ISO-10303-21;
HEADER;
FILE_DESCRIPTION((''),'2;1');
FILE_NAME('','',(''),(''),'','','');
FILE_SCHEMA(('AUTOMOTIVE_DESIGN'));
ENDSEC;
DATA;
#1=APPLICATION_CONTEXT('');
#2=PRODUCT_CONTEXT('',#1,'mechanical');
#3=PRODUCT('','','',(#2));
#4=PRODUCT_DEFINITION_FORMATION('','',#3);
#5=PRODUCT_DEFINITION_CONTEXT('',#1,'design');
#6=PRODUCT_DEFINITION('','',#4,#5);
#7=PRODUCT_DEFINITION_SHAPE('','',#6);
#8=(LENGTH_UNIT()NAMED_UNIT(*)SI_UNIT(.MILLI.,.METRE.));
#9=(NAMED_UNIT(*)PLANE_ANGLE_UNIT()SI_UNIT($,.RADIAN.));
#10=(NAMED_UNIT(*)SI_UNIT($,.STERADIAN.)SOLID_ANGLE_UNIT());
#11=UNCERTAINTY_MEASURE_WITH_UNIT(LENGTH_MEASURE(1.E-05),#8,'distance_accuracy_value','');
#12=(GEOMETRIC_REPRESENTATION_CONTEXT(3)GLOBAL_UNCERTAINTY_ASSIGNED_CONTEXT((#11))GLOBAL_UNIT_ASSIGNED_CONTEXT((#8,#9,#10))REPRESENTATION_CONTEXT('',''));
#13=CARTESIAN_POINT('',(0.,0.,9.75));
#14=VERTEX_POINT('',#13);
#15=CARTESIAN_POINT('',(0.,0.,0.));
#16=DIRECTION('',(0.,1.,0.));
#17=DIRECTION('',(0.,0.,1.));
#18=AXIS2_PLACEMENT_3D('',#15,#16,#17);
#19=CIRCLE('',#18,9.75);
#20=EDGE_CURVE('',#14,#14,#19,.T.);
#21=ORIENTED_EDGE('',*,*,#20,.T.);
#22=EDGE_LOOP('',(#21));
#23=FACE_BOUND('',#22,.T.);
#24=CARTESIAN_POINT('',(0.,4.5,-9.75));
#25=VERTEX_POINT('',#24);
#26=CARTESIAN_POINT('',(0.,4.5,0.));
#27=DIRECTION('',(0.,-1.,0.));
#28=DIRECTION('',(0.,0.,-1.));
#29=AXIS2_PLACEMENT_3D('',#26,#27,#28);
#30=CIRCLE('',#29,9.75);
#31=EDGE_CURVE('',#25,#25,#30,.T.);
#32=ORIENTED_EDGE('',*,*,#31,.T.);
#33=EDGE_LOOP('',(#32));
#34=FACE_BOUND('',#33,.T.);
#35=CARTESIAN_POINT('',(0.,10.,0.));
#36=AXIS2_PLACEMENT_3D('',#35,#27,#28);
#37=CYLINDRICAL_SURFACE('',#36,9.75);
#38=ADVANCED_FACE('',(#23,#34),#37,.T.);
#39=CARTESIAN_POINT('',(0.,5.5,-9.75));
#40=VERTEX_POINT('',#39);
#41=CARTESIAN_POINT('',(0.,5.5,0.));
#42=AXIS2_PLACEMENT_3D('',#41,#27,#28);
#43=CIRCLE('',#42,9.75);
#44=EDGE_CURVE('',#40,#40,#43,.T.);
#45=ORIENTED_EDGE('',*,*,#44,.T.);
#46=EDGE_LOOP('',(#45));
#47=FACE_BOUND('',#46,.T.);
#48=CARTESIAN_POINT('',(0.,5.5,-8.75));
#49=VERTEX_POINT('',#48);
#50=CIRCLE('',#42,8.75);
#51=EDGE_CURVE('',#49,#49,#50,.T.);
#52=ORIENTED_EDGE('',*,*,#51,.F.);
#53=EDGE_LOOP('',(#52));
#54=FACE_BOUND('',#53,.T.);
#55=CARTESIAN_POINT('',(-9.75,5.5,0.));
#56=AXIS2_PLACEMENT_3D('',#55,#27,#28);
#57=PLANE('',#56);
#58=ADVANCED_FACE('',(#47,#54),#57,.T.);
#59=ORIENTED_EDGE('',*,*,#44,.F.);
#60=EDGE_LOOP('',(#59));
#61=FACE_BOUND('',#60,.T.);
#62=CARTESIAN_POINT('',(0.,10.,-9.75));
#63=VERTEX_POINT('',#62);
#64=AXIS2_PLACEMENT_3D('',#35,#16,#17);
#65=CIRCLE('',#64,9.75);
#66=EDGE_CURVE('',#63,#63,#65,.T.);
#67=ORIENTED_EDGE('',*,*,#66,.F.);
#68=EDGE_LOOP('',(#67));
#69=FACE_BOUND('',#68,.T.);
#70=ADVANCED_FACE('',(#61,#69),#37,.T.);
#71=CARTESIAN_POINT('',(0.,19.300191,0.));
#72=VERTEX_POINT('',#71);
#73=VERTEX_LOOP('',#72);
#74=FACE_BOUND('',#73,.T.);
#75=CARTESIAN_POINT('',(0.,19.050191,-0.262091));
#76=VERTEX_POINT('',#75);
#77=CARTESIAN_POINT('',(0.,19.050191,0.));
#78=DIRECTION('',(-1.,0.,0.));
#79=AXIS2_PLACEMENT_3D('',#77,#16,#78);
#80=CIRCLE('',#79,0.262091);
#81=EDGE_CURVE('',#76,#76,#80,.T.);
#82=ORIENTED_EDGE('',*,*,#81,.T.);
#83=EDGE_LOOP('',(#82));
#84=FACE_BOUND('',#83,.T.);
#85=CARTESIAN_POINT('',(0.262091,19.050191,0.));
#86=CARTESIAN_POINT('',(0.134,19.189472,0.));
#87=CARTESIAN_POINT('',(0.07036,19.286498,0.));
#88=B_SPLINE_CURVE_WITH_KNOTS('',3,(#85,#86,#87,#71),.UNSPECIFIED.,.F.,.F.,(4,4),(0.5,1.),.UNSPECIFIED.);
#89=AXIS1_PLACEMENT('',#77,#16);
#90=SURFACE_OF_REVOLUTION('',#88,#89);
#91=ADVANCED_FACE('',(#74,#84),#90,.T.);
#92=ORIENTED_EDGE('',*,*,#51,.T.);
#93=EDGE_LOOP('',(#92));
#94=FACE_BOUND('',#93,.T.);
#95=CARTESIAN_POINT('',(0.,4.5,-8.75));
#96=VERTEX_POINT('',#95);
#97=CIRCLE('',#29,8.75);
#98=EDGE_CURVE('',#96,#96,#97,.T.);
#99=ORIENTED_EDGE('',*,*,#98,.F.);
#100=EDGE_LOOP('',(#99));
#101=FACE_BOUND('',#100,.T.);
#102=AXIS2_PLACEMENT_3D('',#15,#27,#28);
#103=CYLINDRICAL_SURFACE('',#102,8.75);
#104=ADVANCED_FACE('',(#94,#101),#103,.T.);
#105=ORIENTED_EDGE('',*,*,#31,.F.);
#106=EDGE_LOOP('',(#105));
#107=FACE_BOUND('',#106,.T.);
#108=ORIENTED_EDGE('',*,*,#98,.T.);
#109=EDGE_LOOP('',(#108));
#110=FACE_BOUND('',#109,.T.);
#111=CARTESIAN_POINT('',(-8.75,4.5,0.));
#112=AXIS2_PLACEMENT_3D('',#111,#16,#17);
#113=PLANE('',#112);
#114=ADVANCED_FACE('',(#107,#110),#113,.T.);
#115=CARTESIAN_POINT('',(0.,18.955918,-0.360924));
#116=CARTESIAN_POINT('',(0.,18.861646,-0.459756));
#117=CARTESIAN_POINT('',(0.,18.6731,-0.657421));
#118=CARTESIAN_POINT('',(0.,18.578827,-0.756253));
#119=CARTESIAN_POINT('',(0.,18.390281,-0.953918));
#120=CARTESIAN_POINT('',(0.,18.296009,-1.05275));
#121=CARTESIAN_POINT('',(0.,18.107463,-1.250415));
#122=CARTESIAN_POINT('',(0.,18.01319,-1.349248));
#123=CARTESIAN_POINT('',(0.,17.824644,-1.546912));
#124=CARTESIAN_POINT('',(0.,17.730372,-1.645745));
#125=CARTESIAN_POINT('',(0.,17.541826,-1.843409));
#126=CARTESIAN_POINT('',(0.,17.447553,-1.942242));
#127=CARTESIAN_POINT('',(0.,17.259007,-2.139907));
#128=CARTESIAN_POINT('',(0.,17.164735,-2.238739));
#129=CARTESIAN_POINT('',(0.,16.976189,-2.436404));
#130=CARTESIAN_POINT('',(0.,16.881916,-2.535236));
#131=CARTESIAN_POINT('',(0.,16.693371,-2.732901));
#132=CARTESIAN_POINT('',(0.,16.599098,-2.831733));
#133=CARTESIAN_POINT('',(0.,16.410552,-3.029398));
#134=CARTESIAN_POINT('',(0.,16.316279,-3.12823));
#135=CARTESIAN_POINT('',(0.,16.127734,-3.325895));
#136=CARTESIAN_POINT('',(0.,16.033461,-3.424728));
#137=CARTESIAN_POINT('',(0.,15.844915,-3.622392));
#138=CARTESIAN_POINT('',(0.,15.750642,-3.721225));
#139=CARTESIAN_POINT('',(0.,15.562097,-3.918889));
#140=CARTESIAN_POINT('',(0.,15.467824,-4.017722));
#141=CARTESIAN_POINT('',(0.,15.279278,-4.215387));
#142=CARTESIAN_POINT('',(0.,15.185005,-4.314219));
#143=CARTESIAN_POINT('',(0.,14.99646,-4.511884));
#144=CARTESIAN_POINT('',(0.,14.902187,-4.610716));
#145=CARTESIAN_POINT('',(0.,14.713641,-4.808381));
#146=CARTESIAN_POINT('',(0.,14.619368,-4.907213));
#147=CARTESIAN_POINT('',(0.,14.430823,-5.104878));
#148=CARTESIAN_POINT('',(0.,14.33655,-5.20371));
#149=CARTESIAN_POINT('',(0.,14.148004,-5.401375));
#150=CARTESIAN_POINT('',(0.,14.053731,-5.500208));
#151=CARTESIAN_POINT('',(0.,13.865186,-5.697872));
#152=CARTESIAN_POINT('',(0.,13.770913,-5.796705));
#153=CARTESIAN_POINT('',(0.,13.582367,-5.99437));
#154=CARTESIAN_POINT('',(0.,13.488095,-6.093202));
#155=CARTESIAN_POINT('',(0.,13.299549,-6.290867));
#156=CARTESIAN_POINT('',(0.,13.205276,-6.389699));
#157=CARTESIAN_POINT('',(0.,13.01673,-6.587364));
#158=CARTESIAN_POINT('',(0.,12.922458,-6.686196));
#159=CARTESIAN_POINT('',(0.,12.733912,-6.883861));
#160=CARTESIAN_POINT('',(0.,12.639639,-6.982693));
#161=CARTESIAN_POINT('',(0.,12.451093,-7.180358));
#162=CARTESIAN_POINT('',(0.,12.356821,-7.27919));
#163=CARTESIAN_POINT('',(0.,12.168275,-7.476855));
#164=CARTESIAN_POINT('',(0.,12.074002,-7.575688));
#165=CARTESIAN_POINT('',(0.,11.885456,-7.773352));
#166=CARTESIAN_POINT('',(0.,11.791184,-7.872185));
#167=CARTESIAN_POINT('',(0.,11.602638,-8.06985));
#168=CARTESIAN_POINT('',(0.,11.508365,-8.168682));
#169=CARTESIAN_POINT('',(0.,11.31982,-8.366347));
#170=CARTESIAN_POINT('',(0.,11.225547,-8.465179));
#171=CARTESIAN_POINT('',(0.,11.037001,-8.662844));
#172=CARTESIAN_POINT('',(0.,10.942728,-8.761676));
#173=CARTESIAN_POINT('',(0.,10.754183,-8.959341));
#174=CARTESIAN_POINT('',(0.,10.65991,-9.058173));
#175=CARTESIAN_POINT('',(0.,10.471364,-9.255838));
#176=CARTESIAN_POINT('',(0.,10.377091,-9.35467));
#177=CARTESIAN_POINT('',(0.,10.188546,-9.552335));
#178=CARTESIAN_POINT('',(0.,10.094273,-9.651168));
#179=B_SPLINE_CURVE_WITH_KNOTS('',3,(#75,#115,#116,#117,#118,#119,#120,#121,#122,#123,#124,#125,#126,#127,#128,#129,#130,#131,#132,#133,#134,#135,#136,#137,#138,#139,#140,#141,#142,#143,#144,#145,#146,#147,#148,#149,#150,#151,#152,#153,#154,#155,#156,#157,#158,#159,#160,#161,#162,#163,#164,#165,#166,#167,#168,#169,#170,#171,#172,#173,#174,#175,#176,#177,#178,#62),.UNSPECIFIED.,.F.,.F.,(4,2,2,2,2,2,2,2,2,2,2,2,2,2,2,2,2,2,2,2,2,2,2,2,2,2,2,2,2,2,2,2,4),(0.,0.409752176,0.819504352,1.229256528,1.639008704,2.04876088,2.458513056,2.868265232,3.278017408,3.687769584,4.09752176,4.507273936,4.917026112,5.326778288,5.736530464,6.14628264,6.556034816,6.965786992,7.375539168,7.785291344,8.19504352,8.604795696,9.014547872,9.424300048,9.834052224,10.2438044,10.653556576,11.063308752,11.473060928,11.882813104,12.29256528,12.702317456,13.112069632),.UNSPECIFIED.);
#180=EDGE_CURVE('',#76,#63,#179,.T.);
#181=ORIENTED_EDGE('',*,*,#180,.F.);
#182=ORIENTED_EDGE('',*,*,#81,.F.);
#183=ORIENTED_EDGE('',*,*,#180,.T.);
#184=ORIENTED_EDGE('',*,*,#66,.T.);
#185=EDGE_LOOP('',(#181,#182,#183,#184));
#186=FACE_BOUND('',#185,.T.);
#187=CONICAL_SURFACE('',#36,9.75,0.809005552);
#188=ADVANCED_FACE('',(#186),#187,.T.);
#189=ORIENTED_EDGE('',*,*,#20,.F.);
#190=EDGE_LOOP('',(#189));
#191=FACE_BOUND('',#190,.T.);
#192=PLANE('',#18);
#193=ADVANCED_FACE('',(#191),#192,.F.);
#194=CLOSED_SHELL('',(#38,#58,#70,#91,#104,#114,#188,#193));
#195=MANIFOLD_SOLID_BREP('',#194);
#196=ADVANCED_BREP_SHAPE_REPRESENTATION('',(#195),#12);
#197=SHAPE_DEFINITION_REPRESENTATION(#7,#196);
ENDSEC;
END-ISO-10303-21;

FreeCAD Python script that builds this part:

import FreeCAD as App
import Part
import Sketcher
from FreeCAD import Vector


def add_polygon(sketch, points):
    """Adds a closed chain of lines whose ends are joined by coincident constraints."""
    first, n = sketch.GeometryCount, len(points)
    for a, b in zip(points, points[1:] + points[:1]):
        sketch.addGeometry(Part.LineSegment(App.Vector(*a, 0), App.Vector(*b, 0)), False)
    for i in range(n):
        sketch.addConstraint(Sketcher.Constraint("Coincident", first + i, 2, first + (i + 1) % n, 1))

doc = App.newDocument("Part")
body = doc.addObject("PartDesign::Body", "Body")

# Sketch on XZ plane
sketch1 = doc.addObject("Sketcher::SketchObject", "Sketch")
body.addObject(sketch1)
sketch1.AttachmentSupport = (doc.XZ_Plane, [""])
sketch1.MapMode = "FlatFace"
sketch1.addGeometry(Part.Circle(Vector(0, 0, 0), Vector(0, 0, 1), 9.75), False)
sketch1.addConstraint(Sketcher.Constraint("Coincident", 0, 3, -1, 1))
sketch1.addConstraint(Sketcher.Constraint("Diameter", 0, 19.5))
pad1 = doc.addObject("PartDesign::Pad", "Pad")
body.addObject(pad1)
pad1.Profile = sketch1
pad1.Length = 10
pad1.Reversed = True

# Sketch on XY plane
sketch2 = doc.addObject("Sketcher::SketchObject", "Sketch001")
body.addObject(sketch2)
sketch2.AttachmentSupport = (doc.XY_Plane, [""])
sketch2.MapMode = "FlatFace"
add_polygon(sketch2, [(0, 19.300191), (0, 10), (9.75, 10)])  # lines 0-2
sketch2.addConstraint(Sketcher.Constraint("Vertical", 0))
sketch2.addConstraint(Sketcher.Constraint("Horizontal", 1))
sketch2.addConstraint(Sketcher.Constraint("PointOnObject", 0, 2, -2))
sketch2.addConstraint(Sketcher.Constraint("DistanceY", -1, 1, 0, 2, 10.0))
sketch2.addConstraint(Sketcher.Constraint("DistanceX", 1, 1, 1, 2, 9.75))
sketch2.addConstraint(Sketcher.Constraint("DistanceY", 0, 2, 0, 1, 9.300191))
revolution = doc.addObject("PartDesign::Revolution", "Revolution")
body.addObject(revolution)
revolution.Profile = sketch2
revolution.ReferenceAxis = (sketch2, ["V_Axis"])
revolution.Angle = 360

# Sketch on XY plane
sketch3 = doc.addObject("Sketcher::SketchObject", "Sketch002")
body.addObject(sketch3)
sketch3.AttachmentSupport = (doc.XY_Plane, [""])
sketch3.MapMode = "FlatFace"
add_polygon(sketch3, [(0, 19.300191), (0, 19.050191), (0.262091, 19.050191)])  # lines 0-2
sketch3.addConstraint(Sketcher.Constraint("Vertical", 0))
sketch3.addConstraint(Sketcher.Constraint("Horizontal", 1))
sketch3.addConstraint(Sketcher.Constraint("PointOnObject", 0, 2, -2))
sketch3.addConstraint(Sketcher.Constraint("DistanceY", 0, 2, 0, 1, 0.25))
sketch3.addConstraint(Sketcher.Constraint("DistanceX", 1, 1, 1, 2, 0.262091))
sketch3.addConstraint(Sketcher.Constraint("DistanceY", -1, 1, 0, 2, 19.050191))
groove = doc.addObject("PartDesign::Groove", "Groove")
body.addObject(groove)
groove.Profile = sketch3
groove.ReferenceAxis = (sketch3, ["V_Axis"])
groove.Angle = 360

# Sketch on XY plane
sketch4 = doc.addObject("Sketcher::SketchObject", "Sketch003")
body.addObject(sketch4)
sketch4.AttachmentSupport = (doc.XY_Plane, [""])
sketch4.MapMode = "FlatFace"
sketch4.addGeometry(Part.LineSegment(Vector(0, 19.300191, 0), Vector(0, 19.050191, 0)), False)
sketch4.addGeometry(Part.LineSegment(Vector(0, 19.050191, 0), Vector(0.262091, 19.050191, 0)), False)
sketch4.addGeometry(Part.BSplineCurve([Vector(0, 19.300191, 0), Vector(0.07036, 19.286498, 0), Vector(0.134, 19.189472, 0), Vector(0.262091, 19.050191, 0)], [4, 4], [0.5, 1], False, 3, [1, 1, 1, 1], False), False)
sketch4.addConstraint(Sketcher.Constraint("Block", 2))
sketch4.addConstraint(Sketcher.Constraint("Coincident", 0, 2, 1, 1))
sketch4.addConstraint(Sketcher.Constraint("Coincident", 1, 2, 2, 2))
sketch4.addConstraint(Sketcher.Constraint("Coincident", 2, 1, 0, 1))
sketch4.addConstraint(Sketcher.Constraint("Vertical", 0))
sketch4.addConstraint(Sketcher.Constraint("Horizontal", 1))
revolution2 = doc.addObject("PartDesign::Revolution", "Revolution001")
body.addObject(revolution2)
revolution2.Profile = sketch4
revolution2.ReferenceAxis = (sketch4, ["V_Axis"])
revolution2.Angle = 360

# Sketch on XY plane
sketch5 = doc.addObject("Sketcher::SketchObject", "Sketch004")
body.addObject(sketch5)
sketch5.AttachmentSupport = (doc.XY_Plane, [""])
sketch5.MapMode = "FlatFace"
add_polygon(sketch5, [(-9.75, 5.5), (-9.75, 4.5), (-8.75, 4.5), (-8.75, 5.5)])  # lines 0-3
sketch5.addConstraint(Sketcher.Constraint("Vertical", 0))
sketch5.addConstraint(Sketcher.Constraint("Horizontal", 1))
sketch5.addConstraint(Sketcher.Constraint("Vertical", 2))
sketch5.addConstraint(Sketcher.Constraint("Horizontal", 3))
sketch5.addConstraint(Sketcher.Constraint("Equal", 3, 0))
sketch5.addConstraint(Sketcher.Constraint("DistanceX", 1, 1, 1, 2, 1.0))
sketch5.addConstraint(Sketcher.Constraint("DistanceY", -1, 1, 0, 2, 4.5))
sketch5.addConstraint(Sketcher.Constraint("DistanceX", 0, 2, -1, 1, 9.75))
groove2 = doc.addObject("PartDesign::Groove", "Groove001")
body.addObject(groove2)
groove2.Profile = sketch5
groove2.ReferenceAxis = (sketch5, ["V_Axis"])
groove2.Angle = 360

doc.recompute()
